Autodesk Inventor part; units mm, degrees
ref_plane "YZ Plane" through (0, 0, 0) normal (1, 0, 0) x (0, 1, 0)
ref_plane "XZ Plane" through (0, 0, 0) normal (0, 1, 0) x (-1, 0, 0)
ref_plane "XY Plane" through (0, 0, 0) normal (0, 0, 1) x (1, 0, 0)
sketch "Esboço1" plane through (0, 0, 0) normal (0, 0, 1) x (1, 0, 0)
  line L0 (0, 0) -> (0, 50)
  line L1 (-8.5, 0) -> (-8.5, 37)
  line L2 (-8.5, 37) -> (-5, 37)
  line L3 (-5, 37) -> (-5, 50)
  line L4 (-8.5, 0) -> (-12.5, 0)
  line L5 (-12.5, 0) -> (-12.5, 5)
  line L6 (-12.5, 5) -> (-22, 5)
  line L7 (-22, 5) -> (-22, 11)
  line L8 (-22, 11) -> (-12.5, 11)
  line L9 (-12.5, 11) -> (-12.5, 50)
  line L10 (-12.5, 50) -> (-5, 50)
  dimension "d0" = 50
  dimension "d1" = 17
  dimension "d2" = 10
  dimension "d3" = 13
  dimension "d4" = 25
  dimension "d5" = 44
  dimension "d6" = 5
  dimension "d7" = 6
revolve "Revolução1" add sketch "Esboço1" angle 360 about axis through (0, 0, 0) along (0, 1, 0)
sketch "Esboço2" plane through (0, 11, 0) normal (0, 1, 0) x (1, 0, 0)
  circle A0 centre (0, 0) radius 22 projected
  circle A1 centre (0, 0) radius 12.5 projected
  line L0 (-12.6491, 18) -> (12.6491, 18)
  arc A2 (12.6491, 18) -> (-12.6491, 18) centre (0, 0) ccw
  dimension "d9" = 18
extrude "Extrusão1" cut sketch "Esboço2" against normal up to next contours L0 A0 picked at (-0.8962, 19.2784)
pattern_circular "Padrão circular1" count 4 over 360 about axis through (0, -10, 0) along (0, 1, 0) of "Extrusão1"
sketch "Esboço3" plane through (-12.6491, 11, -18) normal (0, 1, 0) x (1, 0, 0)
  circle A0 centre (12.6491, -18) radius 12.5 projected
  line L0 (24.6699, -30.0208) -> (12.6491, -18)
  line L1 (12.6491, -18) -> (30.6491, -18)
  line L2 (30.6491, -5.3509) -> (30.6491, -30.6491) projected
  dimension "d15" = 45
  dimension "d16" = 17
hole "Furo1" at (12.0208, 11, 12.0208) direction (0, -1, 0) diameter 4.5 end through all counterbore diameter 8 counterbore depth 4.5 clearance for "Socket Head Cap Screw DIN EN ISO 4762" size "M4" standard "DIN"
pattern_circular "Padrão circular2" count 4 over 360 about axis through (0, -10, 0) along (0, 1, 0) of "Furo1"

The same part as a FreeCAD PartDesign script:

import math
import FreeCAD as App
import Part
import Sketcher
Q = App.Units.Quantity

doc = App.newDocument("Part")
params = doc.addObject("Spreadsheet::Sheet", "Params")
for row, (alias, value) in enumerate([
    ("sketch1_height", "13 mm"),
    ("sketch1_height2", "6 mm"),
    ("sketch1_height3", "5 mm"),
    ("sketch1_width", "4 mm"),
    ("sketch1_width2", "3.5 mm"),
    ("revolution_angle", "360 deg"),
    ("sketch2_radius", "22 mm"),
    ("sketch3_diameter", "4.5 mm"),
    ("hole_diameter", "4.5 mm"),
    ("hole_cbore_diameter", "8 mm"),
    ("hole_cbore_depth", "4.5 mm"),
], start=1):
    params.set(f"A{row}", alias)
    params.set(f"B{row}", "=" + value)
    params.setAlias(f"B{row}", alias)

body = doc.addObject("PartDesign::Body", "Body")

# Sketch on XY plane
sketch1 = body.newObject("Sketcher::SketchObject", "Sketch")
sketch1.AttachmentSupport = (doc.getObject("XY_Plane"), [""])
sketch1.MapMode = "FlatFace"
sketch1.addGeometry(Part.LineSegment(App.Vector(-12.5, 0, 0), App.Vector(-8.5, 0, 0)), False)
sketch1.addGeometry(Part.LineSegment(App.Vector(-8.5, 0, 0), App.Vector(-8.5, 37, 0)), False)
sketch1.addGeometry(Part.LineSegment(App.Vector(-8.5, 37, 0), App.Vector(-5, 37, 0)), False)
sketch1.addGeometry(Part.LineSegment(App.Vector(-5, 37, 0), App.Vector(-5, 50, 0)), False)
sketch1.addGeometry(Part.LineSegment(App.Vector(-5, 50, 0), App.Vector(-12.5, 50, 0)), False)
sketch1.addGeometry(Part.LineSegment(App.Vector(-12.5, 50, 0), App.Vector(-12.5, 11, 0)), False)
sketch1.addGeometry(Part.LineSegment(App.Vector(-12.5, 11, 0), App.Vector(-22, 11, 0)), False)
sketch1.addGeometry(Part.LineSegment(App.Vector(-22, 11, 0), App.Vector(-22, 5, 0)), False)
sketch1.addGeometry(Part.LineSegment(App.Vector(-22, 5, 0), App.Vector(-12.5, 5, 0)), False)
sketch1.addGeometry(Part.LineSegment(App.Vector(-12.5, 5, 0), App.Vector(-12.5, 0, 0)), False)
sketch1.addConstraint(Sketcher.Constraint("Coincident", 0, 2, 1, 1))
sketch1.addConstraint(Sketcher.Constraint("Coincident", 1, 2, 2, 1))
sketch1.addConstraint(Sketcher.Constraint("Coincident", 2, 2, 3, 1))
sketch1.addConstraint(Sketcher.Constraint("Coincident", 3, 2, 4, 1))
sketch1.addConstraint(Sketcher.Constraint("Coincident", 4, 2, 5, 1))
sketch1.addConstraint(Sketcher.Constraint("Coincident", 5, 2, 6, 1))
sketch1.addConstraint(Sketcher.Constraint("Coincident", 6, 2, 7, 1))
sketch1.addConstraint(Sketcher.Constraint("Coincident", 7, 2, 8, 1))
sketch1.addConstraint(Sketcher.Constraint("Coincident", 8, 2, 9, 1))
sketch1.addConstraint(Sketcher.Constraint("Coincident", 9, 2, 0, 1))
sketch1.addConstraint(Sketcher.Constraint("Horizontal", 0))
sketch1.addConstraint(Sketcher.Constraint("Vertical", 1))
sketch1.addConstraint(Sketcher.Constraint("Horizontal", 2))
sketch1.addConstraint(Sketcher.Constraint("Vertical", 3))
sketch1.addConstraint(Sketcher.Constraint("Horizontal", 4))
sketch1.addConstraint(Sketcher.Constraint("Vertical", 5))
sketch1.addConstraint(Sketcher.Constraint("Horizontal", 6))
sketch1.addConstraint(Sketcher.Constraint("Vertical", 7))
sketch1.addConstraint(Sketcher.Constraint("Horizontal", 8))
sketch1.addConstraint(Sketcher.Constraint("Vertical", 9))
sketch1.addConstraint(Sketcher.Constraint("PointOnObject", 0, 2, -1))
sketch1.addConstraint(Sketcher.Constraint("Vertical", 5, 2, 8, 2))
sketch1.addConstraint(Sketcher.Constraint("DistanceY", 3, 1, 3, 2, Q("13 mm")))
sketch1.addConstraint(Sketcher.Constraint("DistanceY", 7, 2, 7, 1, Q("6 mm")))
sketch1.addConstraint(Sketcher.Constraint("DistanceY", 9, 2, 9, 1, Q("5 mm")))
sketch1.addConstraint(Sketcher.Constraint("DistanceX", 2, 2, -1, 1, Q("5 mm")))
sketch1.addConstraint(Sketcher.Constraint("DistanceY", -1, 1, 3, 2, Q("50 mm")))
sketch1.addConstraint(Sketcher.Constraint("DistanceX", 6, 2, 2, 2, Q("17 mm")))
sketch1.addConstraint(Sketcher.Constraint("DistanceX", 0, 1, 0, 2, Q("4 mm")))
sketch1.addConstraint(Sketcher.Constraint("DistanceX", 2, 1, 2, 2, Q("3.5 mm")))
sketch1.setExpression("Constraints[22]", "Params.sketch1_height")
sketch1.setExpression("Constraints[23]", "Params.sketch1_height2")
sketch1.setExpression("Constraints[24]", "Params.sketch1_height3")
sketch1.setExpression("Constraints[28]", "Params.sketch1_width")
sketch1.setExpression("Constraints[29]", "Params.sketch1_width2")
revolution = body.newObject("PartDesign::Revolution", "Revolution")
revolution.Profile = sketch1
revolution.ReferenceAxis = (sketch1, ["V_Axis"])
revolution.setExpression("Angle", "Params.revolution_angle")

# Sketch on XZ plane
sketch2 = body.newObject("Sketcher::SketchObject", "Sketch001")
sketch2.AttachmentSupport = (doc.getObject("XZ_Plane"), [""])
sketch2.MapMode = "FlatFace"
sketch2.AttachmentOffset = App.Placement(App.Vector(0, 0, -11), App.Rotation())
sketch2.addGeometry(Part.LineSegment(App.Vector(-12.6491, -18, 0), App.Vector(12.6491, -18, 0)), False)
sketch2.addGeometry(Part.ArcOfCircle(Part.Circle(App.Vector(0, 0, 0), App.Vector(0, 0, 1), 22), math.radians(-125.096779), math.radians(-54.903221)), False)
sketch2.addConstraint(Sketcher.Constraint("Coincident", 0, 1, 1, 1))
sketch2.addConstraint(Sketcher.Constraint("Coincident", 1, 2, 0, 2))
sketch2.addConstraint(Sketcher.Constraint("Horizontal", 0))
sketch2.addConstraint(Sketcher.Constraint("Coincident", 1, 3, -1, 1))
sketch2.addConstraint(Sketcher.Constraint("DistanceY", 0, 1, -1, 1, Q("18 mm")))
sketch2.addConstraint(Sketcher.Constraint("Radius", 1, Q("22 mm")))
sketch2.setExpression("Constraints[5]", "Params.sketch2_radius")
pocket1 = body.newObject("PartDesign::Pocket", "Pocket")
pocket1.Profile = sketch2
pocket1.Type = "UpToFirst"
pocket1.Reversed = True
doc.recompute()

polarpattern = body.newObject("PartDesign::PolarPattern", "PolarPattern")
polarpattern.Originals = [pocket1]
polarpattern.Axis = (doc.getObject("Y_Axis"), [""])
polarpattern.Angle = 360
polarpattern.Occurrences = 4
body.Tip = polarpattern

# Sketch on XZ plane
sketch3 = body.newObject("Sketcher::SketchObject", "Sketch002")
sketch3.AttachmentSupport = (doc.getObject("XZ_Plane"), [""])
sketch3.MapMode = "FlatFace"
sketch3.AttachmentOffset = App.Placement(App.Vector(0, 0, -11), App.Rotation())
sketch3.addGeometry(Part.Circle(App.Vector(12.0208, 12.0208, 0), App.Vector(0, 0, 1), 2.25), False)
sketch3.addConstraint(Sketcher.Constraint("Diameter", 0, Q("4.5 mm")))
sketch3.addConstraint(Sketcher.Constraint("DistanceX", -1, 1, 0, 3, Q("12.0208 mm")))
sketch3.addConstraint(Sketcher.Constraint("DistanceY", -1, 1, 0, 3, Q("12.0208 mm")))
sketch3.setExpression("Constraints[0]", "Params.sketch3_diameter")
doc.recompute()
hole = body.newObject("PartDesign::Hole", "Hole")
hole.Profile = sketch3
hole.ThreadType = "None"
hole.setExpression("Diameter", "Params.hole_diameter")
hole.DepthType = "ThroughAll"
hole.HoleCutType = "Counterbore"
hole.setExpression("HoleCutDiameter", "Params.hole_cbore_diameter")
hole.setExpression("HoleCutDepth", "Params.hole_cbore_depth")
hole.Reversed = True
doc.recompute()

polarpattern2 = body.newObject("PartDesign::PolarPattern", "PolarPattern001")
polarpattern2.Originals = [hole]
polarpattern2.Axis = (doc.getObject("Y_Axis"), [""])
polarpattern2.Angle = 360
polarpattern2.Occurrences = 4
body.Tip = polarpattern2

doc.recompute()
